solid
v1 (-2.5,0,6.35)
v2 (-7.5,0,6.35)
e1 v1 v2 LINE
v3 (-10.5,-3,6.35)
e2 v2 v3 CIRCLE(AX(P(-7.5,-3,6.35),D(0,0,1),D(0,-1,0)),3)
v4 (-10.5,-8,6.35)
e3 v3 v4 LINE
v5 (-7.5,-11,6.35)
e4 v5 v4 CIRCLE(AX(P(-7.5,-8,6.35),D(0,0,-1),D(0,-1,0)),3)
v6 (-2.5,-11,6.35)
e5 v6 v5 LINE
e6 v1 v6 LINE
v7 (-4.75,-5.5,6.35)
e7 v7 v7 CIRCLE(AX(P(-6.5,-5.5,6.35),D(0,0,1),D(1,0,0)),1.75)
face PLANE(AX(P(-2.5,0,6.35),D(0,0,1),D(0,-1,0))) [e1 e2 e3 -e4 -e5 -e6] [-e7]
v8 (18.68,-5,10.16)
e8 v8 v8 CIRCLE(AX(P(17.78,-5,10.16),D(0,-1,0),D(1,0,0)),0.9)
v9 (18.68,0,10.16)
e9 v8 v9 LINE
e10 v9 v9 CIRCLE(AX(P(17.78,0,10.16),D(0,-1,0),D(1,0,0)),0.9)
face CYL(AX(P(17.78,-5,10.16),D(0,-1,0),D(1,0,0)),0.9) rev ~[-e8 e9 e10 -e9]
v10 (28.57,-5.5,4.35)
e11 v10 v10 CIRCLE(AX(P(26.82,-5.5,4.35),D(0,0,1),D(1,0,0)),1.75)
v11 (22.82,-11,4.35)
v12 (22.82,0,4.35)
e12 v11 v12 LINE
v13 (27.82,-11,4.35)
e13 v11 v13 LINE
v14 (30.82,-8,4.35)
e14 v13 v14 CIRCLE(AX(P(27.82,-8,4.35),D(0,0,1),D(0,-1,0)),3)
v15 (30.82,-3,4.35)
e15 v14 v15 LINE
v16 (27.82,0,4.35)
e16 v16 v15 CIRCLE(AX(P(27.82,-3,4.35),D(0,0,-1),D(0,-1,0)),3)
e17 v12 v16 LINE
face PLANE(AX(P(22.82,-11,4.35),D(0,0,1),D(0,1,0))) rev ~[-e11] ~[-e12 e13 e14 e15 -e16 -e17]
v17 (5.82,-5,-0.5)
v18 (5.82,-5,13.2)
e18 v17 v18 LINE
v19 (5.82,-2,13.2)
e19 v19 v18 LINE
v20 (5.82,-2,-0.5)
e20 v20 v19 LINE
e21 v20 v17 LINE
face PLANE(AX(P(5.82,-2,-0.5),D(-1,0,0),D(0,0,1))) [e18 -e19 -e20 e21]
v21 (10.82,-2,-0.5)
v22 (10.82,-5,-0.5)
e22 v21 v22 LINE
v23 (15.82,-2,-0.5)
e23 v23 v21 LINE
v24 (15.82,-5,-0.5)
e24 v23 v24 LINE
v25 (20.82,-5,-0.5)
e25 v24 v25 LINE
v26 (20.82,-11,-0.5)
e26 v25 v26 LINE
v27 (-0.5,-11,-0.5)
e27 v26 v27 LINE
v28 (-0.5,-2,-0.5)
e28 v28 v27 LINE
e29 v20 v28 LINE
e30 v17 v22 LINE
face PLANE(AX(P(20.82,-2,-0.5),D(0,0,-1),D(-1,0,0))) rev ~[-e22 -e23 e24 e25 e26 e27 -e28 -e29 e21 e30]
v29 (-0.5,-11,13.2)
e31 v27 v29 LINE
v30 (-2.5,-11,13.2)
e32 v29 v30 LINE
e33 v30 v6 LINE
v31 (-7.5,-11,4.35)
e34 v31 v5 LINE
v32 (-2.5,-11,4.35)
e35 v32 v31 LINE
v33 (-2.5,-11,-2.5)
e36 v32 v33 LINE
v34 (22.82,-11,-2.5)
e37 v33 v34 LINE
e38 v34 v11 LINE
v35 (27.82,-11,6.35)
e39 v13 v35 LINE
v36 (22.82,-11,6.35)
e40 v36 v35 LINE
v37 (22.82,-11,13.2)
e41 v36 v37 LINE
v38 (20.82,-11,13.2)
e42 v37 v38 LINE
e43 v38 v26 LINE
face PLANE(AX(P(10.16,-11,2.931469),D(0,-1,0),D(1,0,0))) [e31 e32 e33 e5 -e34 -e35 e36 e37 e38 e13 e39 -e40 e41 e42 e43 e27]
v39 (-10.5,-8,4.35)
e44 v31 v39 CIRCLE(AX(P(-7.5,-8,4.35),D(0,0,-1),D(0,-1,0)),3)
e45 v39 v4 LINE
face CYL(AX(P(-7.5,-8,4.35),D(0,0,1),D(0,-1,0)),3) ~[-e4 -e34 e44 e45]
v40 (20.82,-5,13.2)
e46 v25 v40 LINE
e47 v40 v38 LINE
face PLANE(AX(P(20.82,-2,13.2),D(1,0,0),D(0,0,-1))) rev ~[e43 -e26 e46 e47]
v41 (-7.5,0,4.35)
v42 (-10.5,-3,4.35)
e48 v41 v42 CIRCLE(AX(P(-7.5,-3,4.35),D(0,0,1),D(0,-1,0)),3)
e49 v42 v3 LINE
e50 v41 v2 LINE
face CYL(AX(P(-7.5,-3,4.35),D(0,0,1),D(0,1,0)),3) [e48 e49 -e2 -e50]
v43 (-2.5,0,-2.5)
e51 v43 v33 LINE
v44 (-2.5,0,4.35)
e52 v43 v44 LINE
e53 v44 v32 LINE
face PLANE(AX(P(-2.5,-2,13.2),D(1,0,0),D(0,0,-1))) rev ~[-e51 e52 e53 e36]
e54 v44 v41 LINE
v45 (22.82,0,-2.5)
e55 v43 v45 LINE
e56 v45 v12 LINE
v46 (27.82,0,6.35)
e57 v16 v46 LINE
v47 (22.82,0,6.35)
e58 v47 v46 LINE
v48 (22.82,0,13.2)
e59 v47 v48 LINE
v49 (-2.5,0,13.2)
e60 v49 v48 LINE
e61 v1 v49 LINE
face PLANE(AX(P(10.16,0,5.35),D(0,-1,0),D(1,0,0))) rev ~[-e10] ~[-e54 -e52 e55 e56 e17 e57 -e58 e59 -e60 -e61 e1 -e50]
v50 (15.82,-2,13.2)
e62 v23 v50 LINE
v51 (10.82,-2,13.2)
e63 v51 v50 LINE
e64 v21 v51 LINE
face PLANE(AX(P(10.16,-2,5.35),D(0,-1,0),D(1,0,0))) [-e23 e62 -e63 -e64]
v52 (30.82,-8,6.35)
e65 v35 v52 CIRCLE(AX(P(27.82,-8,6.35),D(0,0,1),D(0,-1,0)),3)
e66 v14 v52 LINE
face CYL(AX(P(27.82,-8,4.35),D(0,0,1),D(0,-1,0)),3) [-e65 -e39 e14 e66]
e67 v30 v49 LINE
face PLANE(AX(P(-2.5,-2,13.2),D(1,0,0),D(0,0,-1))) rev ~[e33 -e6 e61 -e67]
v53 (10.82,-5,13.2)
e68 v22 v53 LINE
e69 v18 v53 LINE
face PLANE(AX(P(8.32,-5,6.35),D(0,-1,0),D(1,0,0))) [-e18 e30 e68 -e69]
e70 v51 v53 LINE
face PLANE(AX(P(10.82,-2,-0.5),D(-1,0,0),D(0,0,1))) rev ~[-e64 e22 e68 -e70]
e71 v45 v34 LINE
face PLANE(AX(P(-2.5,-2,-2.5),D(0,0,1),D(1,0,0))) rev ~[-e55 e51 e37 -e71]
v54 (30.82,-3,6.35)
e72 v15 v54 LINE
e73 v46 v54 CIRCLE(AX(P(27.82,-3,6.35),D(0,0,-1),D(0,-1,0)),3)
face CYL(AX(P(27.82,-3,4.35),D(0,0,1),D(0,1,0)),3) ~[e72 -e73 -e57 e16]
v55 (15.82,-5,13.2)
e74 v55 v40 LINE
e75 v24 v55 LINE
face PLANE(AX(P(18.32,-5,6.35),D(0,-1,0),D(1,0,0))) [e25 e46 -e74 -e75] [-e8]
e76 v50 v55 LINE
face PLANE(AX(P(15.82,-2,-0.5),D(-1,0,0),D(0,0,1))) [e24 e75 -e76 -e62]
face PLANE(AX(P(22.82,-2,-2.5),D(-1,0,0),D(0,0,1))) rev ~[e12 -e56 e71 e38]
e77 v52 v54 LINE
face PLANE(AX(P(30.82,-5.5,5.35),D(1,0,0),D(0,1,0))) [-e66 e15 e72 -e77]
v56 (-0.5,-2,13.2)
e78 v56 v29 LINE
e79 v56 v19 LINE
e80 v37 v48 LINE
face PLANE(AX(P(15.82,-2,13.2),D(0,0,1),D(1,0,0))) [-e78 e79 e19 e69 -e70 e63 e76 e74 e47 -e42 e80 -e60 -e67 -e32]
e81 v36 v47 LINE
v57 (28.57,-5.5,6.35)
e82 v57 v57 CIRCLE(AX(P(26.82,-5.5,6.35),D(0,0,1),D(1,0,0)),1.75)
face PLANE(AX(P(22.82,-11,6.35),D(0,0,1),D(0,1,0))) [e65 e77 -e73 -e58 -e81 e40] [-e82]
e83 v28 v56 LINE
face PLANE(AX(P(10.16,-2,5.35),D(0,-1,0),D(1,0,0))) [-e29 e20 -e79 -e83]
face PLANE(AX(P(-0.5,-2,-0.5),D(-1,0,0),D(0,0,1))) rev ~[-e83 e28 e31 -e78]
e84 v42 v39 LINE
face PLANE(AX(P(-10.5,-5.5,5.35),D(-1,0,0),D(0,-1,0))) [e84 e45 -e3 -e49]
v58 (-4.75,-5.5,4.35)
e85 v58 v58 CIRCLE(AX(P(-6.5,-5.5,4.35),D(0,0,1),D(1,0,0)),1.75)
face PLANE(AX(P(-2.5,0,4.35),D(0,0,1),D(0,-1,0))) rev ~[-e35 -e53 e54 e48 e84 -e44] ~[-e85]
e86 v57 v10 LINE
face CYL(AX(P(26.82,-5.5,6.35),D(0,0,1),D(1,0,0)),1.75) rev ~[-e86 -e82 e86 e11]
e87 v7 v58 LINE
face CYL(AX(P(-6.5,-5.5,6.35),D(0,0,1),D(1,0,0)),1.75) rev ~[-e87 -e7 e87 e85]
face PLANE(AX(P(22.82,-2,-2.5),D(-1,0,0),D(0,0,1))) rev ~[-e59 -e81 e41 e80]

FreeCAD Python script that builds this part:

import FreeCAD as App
import Part
import Sketcher


def edges_at(feature, points):
    """Names of the edges that pass closest to the given points."""
    edges = feature.Shape.Edges
    near = lambda p: min(range(len(edges)), key=lambda i: edges[i].distToShape(Part.Vertex(*p))[0])
    return sorted({f"Edge{near(p) + 1}" for p in points})


def add_polygon(sketch, points):
    """Adds a closed chain of lines whose ends are joined by coincident constraints."""
    first, n = sketch.GeometryCount, len(points)
    for a, b in zip(points, points[1:] + points[:1]):
        sketch.addGeometry(Part.LineSegment(App.Vector(*a, 0), App.Vector(*b, 0)), False)
    for i in range(n):
        sketch.addConstraint(Sketcher.Constraint("Coincident", first + i, 2, first + (i + 1) % n, 1))

doc = App.newDocument("Part")
params = doc.addObject("Spreadsheet::Sheet", "Params")
for row, (alias, value) in enumerate([
    ("sketch1_height", "15.7 mm"),
    ("sketch1_width", "25.32 mm"),
    ("pad1_length", "2 mm"),
    ("sketch2_width", "2 mm"),
    ("sketch2_height", "15.7 mm"),
    ("sketch2_height2", "13.7 mm"),
    ("sketch2_width2", "25.32 mm"),
    ("pad2_length", "9 mm"),
    ("sketch3_width", "5 mm"),
    ("sketch3_height", "13.7 mm"),
    ("pad3_length", "3 mm"),
    ("sketch4_diameter", "1.8 mm"),
    ("sketch5_width", "11 mm"),
    ("sketch5_height", "2 mm"),
    ("pad4_length", "8 mm"),
    ("fillet_radius", "3 mm"),
    ("sketch6_width", "11 mm"),
    ("sketch6_height", "2 mm"),
    ("pad5_length", "8 mm"),
    ("fillet2_radius", "3 mm"),
    ("sketch7_diameter", "3.5 mm"),
    ("sketch8_diameter", "3.5 mm"),
], start=1):
    params.set(f"A{row}", alias)
    params.set(f"B{row}", "=" + value)
    params.setAlias(f"B{row}", alias)

body = doc.addObject("PartDesign::Body", "Body")

sketch1 = body.newObject("Sketcher::SketchObject", "Sketch")
sketch1.AttachmentSupport = (doc.getObject("XZ_Plane"), [""])
sketch1.MapMode = "FlatFace"
add_polygon(sketch1, [(-2.5, 13.2), (-2.5, -2.5), (22.82, -2.5), (22.82, 13.2)])
sketch1.addConstraint([
    Sketcher.Constraint("Vertical", 0),
    Sketcher.Constraint("Horizontal", 1),
    Sketcher.Constraint("Vertical", 2),
    Sketcher.Constraint("Horizontal", 3),
    Sketcher.Constraint("DistanceY", 0, 2, 0, 1, 15.7),
    Sketcher.Constraint("DistanceX", 1, 1, 1, 2, 25.32),
    Sketcher.Constraint("DistanceX", 0, 2, -1, 1, 2.5),
    Sketcher.Constraint("DistanceY", 0, 2, -1, 1, 2.5),
])
sketch1.setExpression("Constraints[8]", "Params.sketch1_height")
sketch1.setExpression("Constraints[9]", "Params.sketch1_width")
pad1 = body.newObject("PartDesign::Pad", "Pad")
pad1.Profile = sketch1
pad1.setExpression("Length", "Params.pad1_length")

sketch2 = body.newObject("Sketcher::SketchObject", "Sketch001")
sketch2.AttachmentSupport = (doc.getObject("XZ_Plane"), [""])
sketch2.MapMode = "FlatFace"
sketch2.AttachmentOffset = App.Placement(App.Vector(0, 0, 2), App.Rotation())
add_polygon(sketch2, [(-2.5, 13.2), (-2.5, -2.5), (22.82, -2.5), (22.82, 13.2), (20.82, 13.2), (20.82, -0.5), (-0.5, -0.5), (-0.5, 13.2)])
sketch2.addConstraint([
    Sketcher.Constraint("Vertical", 0),
    Sketcher.Constraint("Horizontal", 1),
    Sketcher.Constraint("Vertical", 2),
    Sketcher.Constraint("Horizontal", 3),
    Sketcher.Constraint("Vertical", 4),
    Sketcher.Constraint("Horizontal", 5),
    Sketcher.Constraint("Vertical", 6),
    Sketcher.Constraint("Horizontal", 7),
    Sketcher.Constraint("Horizontal", 3, 2, 6, 2),
    Sketcher.Constraint("Equal", 3, 7),
    Sketcher.Constraint("DistanceX", 3, 2, 3, 1, 2.0),
    Sketcher.Constraint("DistanceY", 0, 2, 0, 1, 15.7),
    Sketcher.Constraint("DistanceY", 4, 2, 4, 1, 13.7),
    Sketcher.Constraint("DistanceX", 1, 1, 1, 2, 25.32),
    Sketcher.Constraint("DistanceX", 0, 2, -1, 1, 2.5),
    Sketcher.Constraint("DistanceY", 0, 2, -1, 1, 2.5),
])
sketch2.setExpression("Constraints[18]", "Params.sketch2_width")
sketch2.setExpression("Constraints[19]", "Params.sketch2_height")
sketch2.setExpression("Constraints[20]", "Params.sketch2_height2")
sketch2.setExpression("Constraints[21]", "Params.sketch2_width2")
pad2 = body.newObject("PartDesign::Pad", "Pad001")
pad2.Profile = sketch2
pad2.setExpression("Length", "Params.pad2_length")

sketch3 = body.newObject("Sketcher::SketchObject", "Sketch002")
sketch3.AttachmentSupport = (doc.getObject("XZ_Plane"), [""])
sketch3.MapMode = "FlatFace"
sketch3.AttachmentOffset = App.Placement(App.Vector(0, 0, 2), App.Rotation())
add_polygon(sketch3, [(5.82, 13.2), (5.82, -0.5), (10.82, -0.5), (10.82, 13.2)])
add_polygon(sketch3, [(15.82, 13.2), (15.82, -0.5), (20.82, -0.5), (20.82, 13.2)])
sketch3.addConstraint([
    Sketcher.Constraint("Vertical", 0),
    Sketcher.Constraint("Horizontal", 1),
    Sketcher.Constraint("Vertical", 2),
    Sketcher.Constraint("Horizontal", 3),
    Sketcher.Constraint("Vertical", 4),
    Sketcher.Constraint("Horizontal", 5),
    Sketcher.Constraint("Vertical", 6),
    Sketcher.Constraint("Horizontal", 7),
    Sketcher.Constraint("Horizontal", 1, 2, 4, 2),
    Sketcher.Constraint("Horizontal", 3, 2, 6, 2),
    Sketcher.Constraint("Equal", 3, 5),
    Sketcher.Constraint("DistanceX", 1, 1, 1, 2, 5.0),
    Sketcher.Constraint("DistanceY", 0, 2, 0, 1, 13.7),
    Sketcher.Constraint("DistanceX", 1, 2, 4, 2, 5.0),
    Sketcher.Constraint("DistanceY", 0, 2, -1, 1, 0.5),
    Sketcher.Constraint("DistanceX", -1, 1, 0, 2, 5.82),
])
sketch3.setExpression("Constraints[19]", "Params.sketch3_width")
sketch3.setExpression("Constraints[20]", "Params.sketch3_height")
pad3 = body.newObject("PartDesign::Pad", "Pad002")
pad3.Profile = sketch3
pad3.setExpression("Length", "Params.pad3_length")

sketch4 = body.newObject("Sketcher::SketchObject", "Sketch003")
sketch4.AttachmentSupport = (doc.getObject("XZ_Plane"), [""])
sketch4.MapMode = "FlatFace"
sketch4.AttachmentOffset = App.Placement(App.Vector(0, 0, 5), App.Rotation())
sketch4.addGeometry(Part.Circle(App.Vector(17.78, 10.16, 0), App.Vector(0, 0, 1), 0.9), False)
sketch4.addConstraint([
    Sketcher.Constraint("Diameter", 0, 1.8),
    Sketcher.Constraint("DistanceX", -1, 1, 0, 3, 17.78),
    Sketcher.Constraint("DistanceY", -1, 1, 0, 3, 10.16),
])
sketch4.setExpression("Constraints[0]", "Params.sketch4_diameter")
pocket1 = body.newObject("PartDesign::Pocket", "Pocket")
pocket1.Profile = sketch4
pocket1.Type = "ThroughAll"

sketch5 = body.newObject("Sketcher::SketchObject", "Sketch004")
sketch5.AttachmentSupport = (doc.getObject("YZ_Plane"), [""])
sketch5.MapMode = "FlatFace"
sketch5.AttachmentOffset = App.Placement(App.Vector(0, 0, -2.5), App.Rotation())
add_polygon(sketch5, [(0, 6.35), (0, 4.35), (-11, 4.35), (-11, 6.35)])
sketch5.addConstraint([
    Sketcher.Constraint("Vertical", 0),
    Sketcher.Constraint("Horizontal", 1),
    Sketcher.Constraint("Vertical", 2),
    Sketcher.Constraint("Horizontal", 3),
    Sketcher.Constraint("PointOnObject", 0, 2, -2),
    Sketcher.Constraint("DistanceX", 1, 2, 1, 1, 11.0),
    Sketcher.Constraint("DistanceY", 0, 2, 0, 1, 2.0),
    Sketcher.Constraint("DistanceY", -1, 1, 0, 2, 4.35),
])
sketch5.setExpression("Constraints[9]", "Params.sketch5_width")
sketch5.setExpression("Constraints[10]", "Params.sketch5_height")
pad4 = body.newObject("PartDesign::Pad", "Pad003")
pad4.Profile = sketch5
pad4.setExpression("Length", "Params.pad4_length")
pad4.Reversed = True
doc.recompute()

fillet = body.newObject("PartDesign::Fillet", "Fillet")
fillet.Base = (pad4, edges_at(pad4, [(-10.5, -11, 5.35), (-10.5, 0, 5.35)]))
fillet.setExpression("Radius", "Params.fillet_radius")

sketch6 = body.newObject("Sketcher::SketchObject", "Sketch005")
sketch6.AttachmentSupport = (doc.getObject("YZ_Plane"), [""])
sketch6.MapMode = "FlatFace"
sketch6.AttachmentOffset = App.Placement(App.Vector(0, 0, 22.82), App.Rotation())
add_polygon(sketch6, [(-11, 6.35), (-11, 4.35), (0, 4.35), (0, 6.35)])
sketch6.addConstraint([
    Sketcher.Constraint("Vertical", 0),
    Sketcher.Constraint("Horizontal", 1),
    Sketcher.Constraint("Vertical", 2),
    Sketcher.Constraint("Horizontal", 3),
    Sketcher.Constraint("PointOnObject", 1, 2, -2),
    Sketcher.Constraint("DistanceX", 1, 1, 1, 2, 11.0),
    Sketcher.Constraint("DistanceY", 0, 2, 0, 1, 2.0),
    Sketcher.Constraint("DistanceY", -1, 1, 0, 2, 4.35),
])
sketch6.setExpression("Constraints[9]", "Params.sketch6_width")
sketch6.setExpression("Constraints[10]", "Params.sketch6_height")
pad5 = body.newObject("PartDesign::Pad", "Pad004")
pad5.Profile = sketch6
pad5.setExpression("Length", "Params.pad5_length")
doc.recompute()

fillet2 = body.newObject("PartDesign::Fillet", "Fillet001")
fillet2.Base = (pad5, edges_at(pad5, [(30.82, -11, 5.35), (30.82, 0, 5.35)]))
fillet2.setExpression("Radius", "Params.fillet2_radius")

sketch7 = body.newObject("Sketcher::SketchObject", "Sketch006")
sketch7.AttachmentSupport = (doc.getObject("XY_Plane"), [""])
sketch7.MapMode = "FlatFace"
sketch7.AttachmentOffset = App.Placement(App.Vector(0, 0, 6.35), App.Rotation())
sketch7.addGeometry(Part.Circle(App.Vector(-6.5, -5.5, 0), App.Vector(0, 0, 1), 1.75), False)
sketch7.addConstraint([
    Sketcher.Constraint("Diameter", 0, 3.5),
    Sketcher.Constraint("DistanceX", 0, 3, -1, 1, 6.5),
    Sketcher.Constraint("DistanceY", 0, 3, -1, 1, 5.5),
])
sketch7.setExpression("Constraints[0]", "Params.sketch7_diameter")
pocket2 = body.newObject("PartDesign::Pocket", "Pocket001")
pocket2.Profile = sketch7
pocket2.Type = "ThroughAll"

sketch8 = body.newObject("Sketcher::SketchObject", "Sketch007")
sketch8.AttachmentSupport = (doc.getObject("XY_Plane"), [""])
sketch8.MapMode = "FlatFace"
sketch8.AttachmentOffset = App.Placement(App.Vector(0, 0, 6.35), App.Rotation())
sketch8.addGeometry(Part.Circle(App.Vector(26.82, -5.5, 0), App.Vector(0, 0, 1), 1.75), False)
sketch8.addConstraint([
    Sketcher.Constraint("Diameter", 0, 3.5),
    Sketcher.Constraint("DistanceY", 0, 3, -1, 1, 5.5),
    Sketcher.Constraint("DistanceX", -1, 1, 0, 3, 26.82),
])
sketch8.setExpression("Constraints[0]", "Params.sketch8_diameter")
pocket3 = body.newObject("PartDesign::Pocket", "Pocket002")
pocket3.Profile = sketch8
pocket3.Type = "ThroughAll"

doc.recompute()
